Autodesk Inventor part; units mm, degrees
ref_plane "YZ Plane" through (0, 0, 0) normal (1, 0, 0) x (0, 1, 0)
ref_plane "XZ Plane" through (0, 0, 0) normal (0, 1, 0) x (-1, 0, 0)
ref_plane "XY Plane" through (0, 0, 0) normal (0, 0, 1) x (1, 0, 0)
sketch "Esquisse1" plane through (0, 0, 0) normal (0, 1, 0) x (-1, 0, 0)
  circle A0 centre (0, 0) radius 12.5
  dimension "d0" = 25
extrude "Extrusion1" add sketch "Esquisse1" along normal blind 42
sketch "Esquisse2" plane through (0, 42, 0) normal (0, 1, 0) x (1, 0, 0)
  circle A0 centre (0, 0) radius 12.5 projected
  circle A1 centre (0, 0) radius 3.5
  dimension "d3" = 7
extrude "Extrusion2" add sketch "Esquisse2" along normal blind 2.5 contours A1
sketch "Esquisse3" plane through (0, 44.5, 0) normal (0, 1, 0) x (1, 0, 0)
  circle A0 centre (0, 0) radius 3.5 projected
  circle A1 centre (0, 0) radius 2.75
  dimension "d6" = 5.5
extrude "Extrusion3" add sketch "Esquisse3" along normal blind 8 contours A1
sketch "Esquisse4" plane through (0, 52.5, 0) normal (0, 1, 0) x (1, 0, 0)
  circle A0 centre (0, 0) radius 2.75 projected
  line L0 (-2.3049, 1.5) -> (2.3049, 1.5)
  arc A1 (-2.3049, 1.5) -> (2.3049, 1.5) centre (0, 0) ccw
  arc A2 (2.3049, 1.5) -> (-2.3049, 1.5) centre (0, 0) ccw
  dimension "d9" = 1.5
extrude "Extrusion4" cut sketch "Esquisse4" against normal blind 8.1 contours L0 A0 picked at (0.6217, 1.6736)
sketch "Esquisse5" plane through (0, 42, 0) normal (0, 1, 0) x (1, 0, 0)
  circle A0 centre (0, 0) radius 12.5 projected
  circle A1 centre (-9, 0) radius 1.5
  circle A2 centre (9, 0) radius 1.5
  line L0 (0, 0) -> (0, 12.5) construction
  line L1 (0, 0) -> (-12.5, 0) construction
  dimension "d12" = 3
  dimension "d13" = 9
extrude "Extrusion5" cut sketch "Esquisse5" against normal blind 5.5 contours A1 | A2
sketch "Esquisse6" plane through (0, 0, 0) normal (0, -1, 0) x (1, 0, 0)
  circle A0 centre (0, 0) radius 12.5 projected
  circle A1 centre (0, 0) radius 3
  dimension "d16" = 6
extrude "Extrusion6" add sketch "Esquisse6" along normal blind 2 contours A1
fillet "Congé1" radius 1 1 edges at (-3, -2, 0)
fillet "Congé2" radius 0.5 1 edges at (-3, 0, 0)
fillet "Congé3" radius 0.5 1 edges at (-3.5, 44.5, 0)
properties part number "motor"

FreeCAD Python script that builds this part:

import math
import FreeCAD as App
import Part
import Sketcher
Q = App.Units.Quantity


def edges_at(feature, points):
    """Names of the edges that pass closest to the given points."""
    edges = feature.Shape.Edges
    near = lambda p: min(range(len(edges)), key=lambda i: edges[i].distToShape(Part.Vertex(*p))[0])
    return sorted({f"Edge{near(p) + 1}" for p in points})

doc = App.newDocument("Part")
body = doc.addObject("PartDesign::Body", "Body")

# Sketch on XZ plane
sketch1 = doc.addObject("Sketcher::SketchObject", "Sketch")
body.addObject(sketch1)
sketch1.AttachmentSupport = (doc.XZ_Plane, [""])
sketch1.MapMode = "FlatFace"
sketch1.addGeometry(Part.Circle(App.Vector(0, 0, 0), App.Vector(0, 0, 1), 12.5), False)
sketch1.addConstraint(Sketcher.Constraint("Coincident", 0, 3, -1, 1))
sketch1.addConstraint(Sketcher.Constraint("Diameter", 0, Q("25 mm")))
pad1 = doc.addObject("PartDesign::Pad", "Pad")
body.addObject(pad1)
pad1.Profile = sketch1
pad1.Length = 42
pad1.Reversed = True

# Sketch on XZ plane
sketch2 = doc.addObject("Sketcher::SketchObject", "Sketch001")
body.addObject(sketch2)
sketch2.AttachmentSupport = (doc.XZ_Plane, [""])
sketch2.MapMode = "FlatFace"
sketch2.AttachmentOffset = App.Placement(App.Vector(0, 0, -42), App.Rotation())
sketch2.addGeometry(Part.Circle(App.Vector(0, 0, 0), App.Vector(0, 0, 1), 3.5), False)
sketch2.addConstraint(Sketcher.Constraint("Coincident", 0, 3, -1, 1))
sketch2.addConstraint(Sketcher.Constraint("Diameter", 0, Q("7 mm")))
pad2 = doc.addObject("PartDesign::Pad", "Pad001")
body.addObject(pad2)
pad2.Profile = sketch2
pad2.Length = 2.5
pad2.Reversed = True

# Sketch on XZ plane
sketch3 = doc.addObject("Sketcher::SketchObject", "Sketch002")
body.addObject(sketch3)
sketch3.AttachmentSupport = (doc.XZ_Plane, [""])
sketch3.MapMode = "FlatFace"
sketch3.AttachmentOffset = App.Placement(App.Vector(0, 0, -44.5), App.Rotation())
sketch3.addGeometry(Part.Circle(App.Vector(0, 0, 0), App.Vector(0, 0, 1), 2.75), False)
sketch3.addConstraint(Sketcher.Constraint("Coincident", 0, 3, -1, 1))
sketch3.addConstraint(Sketcher.Constraint("Diameter", 0, Q("5.5 mm")))
pad3 = doc.addObject("PartDesign::Pad", "Pad002")
body.addObject(pad3)
pad3.Profile = sketch3
pad3.Length = 8
pad3.Reversed = True

# Sketch on XZ plane
sketch4 = doc.addObject("Sketcher::SketchObject", "Sketch003")
body.addObject(sketch4)
sketch4.AttachmentSupport = (doc.XZ_Plane, [""])
sketch4.MapMode = "FlatFace"
sketch4.AttachmentOffset = App.Placement(App.Vector(0, 0, -52.5), App.Rotation())
sketch4.addGeometry(Part.LineSegment(App.Vector(-2.3049, -1.5, 0), App.Vector(2.3049, -1.5, 0)), False)
sketch4.addGeometry(Part.ArcOfCircle(Part.Circle(App.Vector(0, 0, 0), App.Vector(0, 0, 1), 2.75), math.radians(-146.944427), math.radians(-33.055573)), False)
sketch4.addConstraint(Sketcher.Constraint("Coincident", 0, 1, 1, 1))
sketch4.addConstraint(Sketcher.Constraint("Coincident", 1, 2, 0, 2))
sketch4.addConstraint(Sketcher.Constraint("Horizontal", 0))
sketch4.addConstraint(Sketcher.Constraint("Coincident", 1, 3, -1, 1))
sketch4.addConstraint(Sketcher.Constraint("DistanceY", 0, 1, -1, 1, Q("1.5 mm")))
sketch4.addConstraint(Sketcher.Constraint("Radius", 1, Q("2.75 mm")))
pocket1 = doc.addObject("PartDesign::Pocket", "Pocket")
body.addObject(pocket1)
pocket1.Profile = sketch4
pocket1.Length = 8.1
pocket1.Reversed = True

# Sketch on XZ plane
sketch5 = doc.addObject("Sketcher::SketchObject", "Sketch004")
body.addObject(sketch5)
sketch5.AttachmentSupport = (doc.XZ_Plane, [""])
sketch5.MapMode = "FlatFace"
sketch5.AttachmentOffset = App.Placement(App.Vector(0, 0, -42), App.Rotation())
sketch5.addGeometry(Part.Circle(App.Vector(-9, 0, 0), App.Vector(0, 0, 1), 1.5), False)
sketch5.addGeometry(Part.Circle(App.Vector(9, 0, 0), App.Vector(0, 0, 1), 1.5), False)
sketch5.addConstraint(Sketcher.Constraint("Equal", 0, 1))
sketch5.addConstraint(Sketcher.Constraint("Symmetric", 0, 3, 1, 3, -1, 1))
sketch5.addConstraint(Sketcher.Constraint("PointOnObject", 0, 3, -1))
sketch5.addConstraint(Sketcher.Constraint("Diameter", 0, Q("3 mm")))
sketch5.addConstraint(Sketcher.Constraint("DistanceX", 0, 3, -1, 1, Q("9 mm")))
pocket2 = doc.addObject("PartDesign::Pocket", "Pocket001")
body.addObject(pocket2)
pocket2.Profile = sketch5
pocket2.Length = 5.5
pocket2.Reversed = True

# Sketch on XZ plane
sketch6 = doc.addObject("Sketcher::SketchObject", "Sketch005")
body.addObject(sketch6)
sketch6.AttachmentSupport = (doc.XZ_Plane, [""])
sketch6.MapMode = "FlatFace"
sketch6.addGeometry(Part.Circle(App.Vector(0, 0, 0), App.Vector(0, 0, 1), 3), False)
sketch6.addConstraint(Sketcher.Constraint("Coincident", 0, 3, -1, 1))
sketch6.addConstraint(Sketcher.Constraint("Diameter", 0, Q("6 mm")))
pad4 = doc.addObject("PartDesign::Pad", "Pad003")
body.addObject(pad4)
pad4.Profile = sketch6
pad4.Length = 2
doc.recompute()

fillet = doc.addObject("PartDesign::Fillet", "Fillet")
body.addObject(fillet)
fillet.Base = (pad4, edges_at(pad4, [(-3, -2, 0)]))
fillet.Radius = 1
doc.recompute()

fillet2 = doc.addObject("PartDesign::Fillet", "Fillet001")
body.addObject(fillet2)
fillet2.Base = (fillet, edges_at(fillet, [(-3, 0, 0)]))
fillet2.Radius = 0.5
doc.recompute()

fillet3 = doc.addObject("PartDesign::Fillet", "Fillet002")
body.addObject(fillet3)
fillet3.Base = (fillet2, edges_at(fillet2, [(-3.5, 44.5, 0)]))
fillet3.Radius = 0.5

doc.recompute()
